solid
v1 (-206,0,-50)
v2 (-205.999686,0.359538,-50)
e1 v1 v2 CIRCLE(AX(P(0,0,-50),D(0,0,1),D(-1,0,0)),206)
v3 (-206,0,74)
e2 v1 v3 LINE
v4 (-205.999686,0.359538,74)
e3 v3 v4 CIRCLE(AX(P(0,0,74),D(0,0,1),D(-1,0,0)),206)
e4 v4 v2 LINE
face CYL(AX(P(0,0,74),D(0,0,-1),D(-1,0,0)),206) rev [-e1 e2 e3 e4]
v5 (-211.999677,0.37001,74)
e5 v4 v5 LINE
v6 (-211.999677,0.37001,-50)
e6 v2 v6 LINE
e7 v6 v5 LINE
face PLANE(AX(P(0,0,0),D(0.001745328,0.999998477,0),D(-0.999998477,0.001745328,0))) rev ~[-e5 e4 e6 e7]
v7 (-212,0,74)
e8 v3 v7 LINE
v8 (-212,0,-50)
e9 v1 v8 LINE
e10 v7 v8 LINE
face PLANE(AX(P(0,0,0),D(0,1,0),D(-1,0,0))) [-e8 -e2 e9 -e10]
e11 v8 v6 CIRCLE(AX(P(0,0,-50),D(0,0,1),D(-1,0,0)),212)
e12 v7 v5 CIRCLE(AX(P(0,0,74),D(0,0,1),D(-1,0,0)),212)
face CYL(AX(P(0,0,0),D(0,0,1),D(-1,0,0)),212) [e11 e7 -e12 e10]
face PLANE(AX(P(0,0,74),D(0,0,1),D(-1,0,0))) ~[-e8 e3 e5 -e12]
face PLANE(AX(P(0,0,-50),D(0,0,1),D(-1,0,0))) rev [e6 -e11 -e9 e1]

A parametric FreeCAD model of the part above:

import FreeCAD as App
import Part
import Sketcher
from FreeCAD import Vector

doc = App.newDocument("Part")
body = doc.addObject("PartDesign::Body", "Body")

# Sketch on XZ plane
sketch1 = doc.addObject("Sketcher::SketchObject", "Sketch")
body.addObject(sketch1)
sketch1.AttachmentSupport = (doc.XZ_Plane, [""])
sketch1.MapMode = "FlatFace"
sketch1.addGeometry(Part.LineSegment(Vector(-212, 74, 0), Vector(-206, 74, 0)), False)
sketch1.addGeometry(Part.LineSegment(Vector(-206, 74, 0), Vector(-206, -50, 0)), False)
sketch1.addGeometry(Part.LineSegment(Vector(-206, -50, 0), Vector(-212, -50, 0)), False)
sketch1.addGeometry(Part.LineSegment(Vector(-212, -50, 0), Vector(-212, 74, 0)), False)
sketch1.addConstraint(Sketcher.Constraint("Coincident", 0, 2, 1, 1))
sketch1.addConstraint(Sketcher.Constraint("Coincident", 1, 2, 2, 1))
sketch1.addConstraint(Sketcher.Constraint("Coincident", 2, 2, 3, 1))
sketch1.addConstraint(Sketcher.Constraint("Coincident", 3, 2, 0, 1))
sketch1.addConstraint(Sketcher.Constraint("Horizontal", 0))
sketch1.addConstraint(Sketcher.Constraint("Vertical", 1))
sketch1.addConstraint(Sketcher.Constraint("Horizontal", 2))
sketch1.addConstraint(Sketcher.Constraint("Vertical", 3))
sketch1.addConstraint(Sketcher.Constraint("DistanceX", 0, 1, 0, 2, 6.0))
sketch1.addConstraint(Sketcher.Constraint("DistanceY", -1, 1, 0, 2, 74.0))
sketch1.addConstraint(Sketcher.Constraint("DistanceY", 1, 2, -1, 1, 50.0))
sketch1.addConstraint(Sketcher.Constraint("DistanceX", 0, 2, -1, 1, 206.0))
revolution = doc.addObject("PartDesign::Revolution", "Revolution")
body.addObject(revolution)
revolution.Profile = sketch1
revolution.ReferenceAxis = (sketch1, ["V_Axis"])
revolution.Angle = 359.9

doc.recompute()
